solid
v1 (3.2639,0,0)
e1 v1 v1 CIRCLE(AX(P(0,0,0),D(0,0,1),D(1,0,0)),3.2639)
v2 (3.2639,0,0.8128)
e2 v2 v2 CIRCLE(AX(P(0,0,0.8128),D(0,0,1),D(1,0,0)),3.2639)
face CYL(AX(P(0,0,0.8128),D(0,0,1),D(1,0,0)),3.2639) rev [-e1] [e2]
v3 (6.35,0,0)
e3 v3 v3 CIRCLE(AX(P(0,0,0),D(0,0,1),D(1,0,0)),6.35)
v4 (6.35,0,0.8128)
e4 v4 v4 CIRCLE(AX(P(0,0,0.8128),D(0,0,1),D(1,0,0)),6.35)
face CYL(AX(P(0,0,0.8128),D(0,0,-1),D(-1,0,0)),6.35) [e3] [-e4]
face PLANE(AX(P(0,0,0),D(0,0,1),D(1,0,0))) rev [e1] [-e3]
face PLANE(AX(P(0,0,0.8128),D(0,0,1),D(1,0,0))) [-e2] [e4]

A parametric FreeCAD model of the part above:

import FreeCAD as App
import Part
import Sketcher
from FreeCAD import Vector
Q = App.Units.Quantity

doc = App.newDocument("Part")
body = doc.addObject("PartDesign::Body", "Body")

# Sketch on XY plane
sketch1 = body.newObject("Sketcher::SketchObject", "Sketch")
sketch1.AttachmentSupport = (doc.getObject("XY_Plane"), [""])
sketch1.MapMode = "FlatFace"
sketch1.addGeometry(Part.Circle(Vector(0, 0, 0), Vector(0, 0, 1), 6), False)
sketch1.addConstraint(Sketcher.Constraint("Coincident", 0, 3, -1, 1))
sketch1.addConstraint(Sketcher.Constraint("Diameter", 0, Q("0.5 in")))
pad1 = body.newObject("PartDesign::Pad", "Pad")
pad1.Profile = sketch1
pad1.Length = Q("0.032 in")

# Sketch on XY plane
sketch2 = body.newObject("Sketcher::SketchObject", "Sketch001")
sketch2.AttachmentSupport = (doc.getObject("XY_Plane"), [""])
sketch2.MapMode = "FlatFace"
sketch2.AttachmentOffset = App.Placement(Vector(0, 0, 0.032 * 25.4), App.Rotation())
sketch2.addGeometry(Part.Circle(Vector(0, 0, 0), Vector(0, 0, 1), 3.3), False)
sketch2.addConstraint(Sketcher.Constraint("Coincident", 0, 3, -1, 1))
sketch2.addConstraint(Sketcher.Constraint("Diameter", 0, Q("0.257 in")))
doc.recompute()
hole = body.newObject("PartDesign::Hole", "Hole")
hole.Profile = sketch2
hole.ThreadType = "None"
hole.Diameter = Q("0.257 in")
hole.DepthType = "ThroughAll"

doc.recompute()
